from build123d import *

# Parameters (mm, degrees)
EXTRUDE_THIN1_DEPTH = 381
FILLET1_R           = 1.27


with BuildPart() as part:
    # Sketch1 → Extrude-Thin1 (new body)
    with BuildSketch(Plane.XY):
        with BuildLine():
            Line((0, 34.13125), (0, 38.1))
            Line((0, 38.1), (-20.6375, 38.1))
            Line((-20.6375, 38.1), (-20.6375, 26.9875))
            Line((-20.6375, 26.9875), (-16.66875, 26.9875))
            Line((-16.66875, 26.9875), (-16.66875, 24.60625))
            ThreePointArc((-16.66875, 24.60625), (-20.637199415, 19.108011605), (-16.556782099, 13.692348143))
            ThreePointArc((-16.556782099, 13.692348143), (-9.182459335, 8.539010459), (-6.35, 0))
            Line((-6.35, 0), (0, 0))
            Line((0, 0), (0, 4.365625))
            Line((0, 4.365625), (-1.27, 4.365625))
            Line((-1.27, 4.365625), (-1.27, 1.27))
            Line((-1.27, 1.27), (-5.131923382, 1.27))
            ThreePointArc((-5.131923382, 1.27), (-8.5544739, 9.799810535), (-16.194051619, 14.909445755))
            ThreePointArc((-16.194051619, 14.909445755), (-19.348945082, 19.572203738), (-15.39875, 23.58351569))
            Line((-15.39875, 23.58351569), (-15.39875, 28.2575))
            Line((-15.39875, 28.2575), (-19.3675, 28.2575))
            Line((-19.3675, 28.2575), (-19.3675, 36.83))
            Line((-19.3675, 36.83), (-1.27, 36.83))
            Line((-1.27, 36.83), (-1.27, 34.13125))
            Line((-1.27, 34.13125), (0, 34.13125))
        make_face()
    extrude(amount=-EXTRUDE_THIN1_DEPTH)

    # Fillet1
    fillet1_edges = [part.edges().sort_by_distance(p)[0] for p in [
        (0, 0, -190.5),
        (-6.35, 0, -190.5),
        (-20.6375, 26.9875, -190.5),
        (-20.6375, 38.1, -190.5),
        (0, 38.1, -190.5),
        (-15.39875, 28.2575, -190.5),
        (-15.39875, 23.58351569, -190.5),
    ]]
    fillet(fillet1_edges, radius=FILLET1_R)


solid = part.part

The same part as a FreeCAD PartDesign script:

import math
import FreeCAD as App
import Part
import Sketcher
from FreeCAD import Vector
Q = App.Units.Quantity


def edges_at(feature, points):
    """Names of the edges that pass closest to the given points."""
    edges = feature.Shape.Edges
    near = lambda p: min(range(len(edges)), key=lambda i: edges[i].distToShape(Part.Vertex(*p))[0])
    return sorted({f"Edge{near(p) + 1}" for p in points})

doc = App.newDocument("Part")
body = doc.addObject("PartDesign::Body", "Body")

sketch1 = doc.addObject("Sketcher::SketchObject", "Sketch")
body.addObject(sketch1)
sketch1.AttachmentSupport = (doc.XY_Plane, [""])
sketch1.MapMode = "FlatFace"
sketch1.addGeometry([
    Part.LineSegment(Vector(0, 34.1, 0), Vector(0, 38.1, 0)),
    Part.LineSegment(Vector(0, 38.1, 0), Vector(-20.6, 38.1, 0)),
    Part.LineSegment(Vector(-20.6, 38.1, 0), Vector(-20.6, 27, 0)),
    Part.LineSegment(Vector(-20.6, 27, 0), Vector(-16.7, 27, 0)),
    Part.LineSegment(Vector(-16.7, 27, 0), Vector(-16.7, 24.6, 0)),
    Part.ArcOfCircle(Part.Circle(Vector(-14.9, 19.2, 0), Vector(0, 0, 1), 5.7), math.radians(108), math.radians(253)),
    Part.ArcOfCircle(Part.Circle(Vector(-20.6, 0, 0), Vector(0, 0, 1), 14.3), math.radians(0), math.radians(73)),
    Part.LineSegment(Vector(-6.3, 0, 0), Vector(0, 0, 0)),
    Part.LineSegment(Vector(0, 0, 0), Vector(0, 4.4, 0)),
    Part.LineSegment(Vector(0, 4.4, 0), Vector(-1.3, 4.4, 0)),
    Part.LineSegment(Vector(-1.3, 4.4, 0), Vector(-1.3, 1.3, 0)),
    Part.LineSegment(Vector(-1.3, 1.3, 0), Vector(-5.1, 1.3, 0)),
    Part.ArcOfCircle(Part.Circle(Vector(-20.6, 0, 0), Vector(0, 0, 1), 15.6), math.radians(5), math.radians(73)),
    Part.ArcOfCircle(Part.Circle(Vector(-14.9, 19.2, 0), Vector(0, 0, 1), 4.4), math.radians(96), math.radians(253)),
    Part.LineSegment(Vector(-15.4, 23.6, 0), Vector(-15.4, 28.3, 0)),
    Part.LineSegment(Vector(-15.4, 28.3, 0), Vector(-19.4, 28.3, 0)),
    Part.LineSegment(Vector(-19.4, 28.3, 0), Vector(-19.4, 36.8, 0)),
    Part.LineSegment(Vector(-19.4, 36.8, 0), Vector(-1.3, 36.8, 0)),
    Part.LineSegment(Vector(-1.3, 36.8, 0), Vector(-1.3, 34.1, 0)),
    Part.LineSegment(Vector(-1.3, 34.1, 0), Vector(0, 34.1, 0)),
], False)
sketch1.addConstraint([
    Sketcher.Constraint("Coincident", 0, 2, 1, 1),
    Sketcher.Constraint("Coincident", 1, 2, 2, 1),
    Sketcher.Constraint("Coincident", 2, 2, 3, 1),
    Sketcher.Constraint("Coincident", 3, 2, 4, 1),
    Sketcher.Constraint("Coincident", 4, 2, 5, 1),
    Sketcher.Constraint("Tangent", 5, 2, 6, 2),
    Sketcher.Constraint("Coincident", 6, 1, 7, 1),
    Sketcher.Constraint("Coincident", 7, 2, 8, 1),
    Sketcher.Constraint("Coincident", 8, 2, 9, 1),
    Sketcher.Constraint("Coincident", 9, 2, 10, 1),
    Sketcher.Constraint("Coincident", 10, 2, 11, 1),
    Sketcher.Constraint("Coincident", 11, 2, 12, 1),
    Sketcher.Constraint("Tangent", 12, 2, 13, 2),
    Sketcher.Constraint("Coincident", 13, 1, 14, 1),
    Sketcher.Constraint("Coincident", 14, 2, 15, 1),
    Sketcher.Constraint("Coincident", 15, 2, 16, 1),
    Sketcher.Constraint("Coincident", 16, 2, 17, 1),
    Sketcher.Constraint("Coincident", 17, 2, 18, 1),
    Sketcher.Constraint("Coincident", 18, 2, 19, 1),
    Sketcher.Constraint("Coincident", 19, 2, 0, 1),
    Sketcher.Constraint("Vertical", 0),
    Sketcher.Constraint("Horizontal", 1),
    Sketcher.Constraint("Vertical", 2),
    Sketcher.Constraint("Horizontal", 3),
    Sketcher.Constraint("Vertical", 4),
    Sketcher.Constraint("Horizontal", 7),
    Sketcher.Constraint("Vertical", 8),
    Sketcher.Constraint("Horizontal", 9),
    Sketcher.Constraint("Vertical", 10),
    Sketcher.Constraint("Horizontal", 11),
    Sketcher.Constraint("Vertical", 14),
    Sketcher.Constraint("Horizontal", 15),
    Sketcher.Constraint("Vertical", 16),
    Sketcher.Constraint("Horizontal", 17),
    Sketcher.Constraint("Vertical", 18),
    Sketcher.Constraint("Horizontal", 19),
    Sketcher.Constraint("Coincident", 7, 2, -1, 1),
    Sketcher.Constraint("Coincident", 12, 3, 6, 3),
    Sketcher.Constraint("Coincident", 13, 3, 5, 3),
    Sketcher.Constraint("PointOnObject", 6, 3, -1),
    Sketcher.Constraint("PointOnObject", 0, 2, -2),
    Sketcher.Constraint("Vertical", 12, 3, 1, 2),
    Sketcher.Constraint("Vertical", 10, 2, 17, 2),
    Sketcher.Constraint("Equal", 3, 15),
    Sketcher.Constraint("Equal", 15, 0),
    Sketcher.Constraint("Radius", 6, Q("0.5625 in")),
    Sketcher.Constraint("DistanceX", 7, 1, 7, 2, Q("0.25 in")),
    Sketcher.Constraint("DistanceX", 9, 2, 9, 1, Q("0.05 in")),
    Sketcher.Constraint("DistanceY", -1, 1, 0, 2, Q("1.5 in")),
    Sketcher.Constraint("Radius", 12, Q("0.6125 in")),
    Sketcher.Constraint("DistanceX", 3, 1, 3, 2, Q("0.15625 in")),
    Sketcher.Constraint("DistanceY", 2, 2, 2, 1, Q("0.4375 in")),
    Sketcher.Constraint("DistanceY", 4, 2, 4, 1, Q("0.09375 in")),
    Sketcher.Constraint("DistanceY", 8, 1, 8, 2, Q("0.171875 in")),
    Sketcher.Constraint("DistanceY", -1, 1, 10, 2, Q("0.05 in")),
    Sketcher.Constraint("DistanceY", -1, 1, 16, 2, Q("1.45 in")),
    Sketcher.Constraint("DistanceX", 4, 2, 13, 1, Q("0.05 in")),
    Sketcher.Constraint("DistanceY", 3, 2, 14, 2, Q("0.05 in")),
    Sketcher.Constraint("Radius", 5, Q("5.712207 mm")),
])
pad1 = doc.addObject("PartDesign::Pad", "Pad")
body.addObject(pad1)
pad1.Profile = sketch1
pad1.Length = Q("15 in")
pad1.Reversed = True
doc.recompute()

fillet = doc.addObject("PartDesign::Fillet", "Fillet")
body.addObject(fillet)
fillet.Base = (pad1, edges_at(pad1, [
    (0, 0, -190.5),
    (-6.35, 0, -190.5),
    (-20.637, 26.988, -190.5),
    (-20.637, 38.1, -190.5),
    (0, 38.1, -190.5),
    (-15.399, 28.258, -190.5),
    (-15.399, 23.584, -190.5),
]))
fillet.Radius = Q("0.05 in")

doc.recompute()
